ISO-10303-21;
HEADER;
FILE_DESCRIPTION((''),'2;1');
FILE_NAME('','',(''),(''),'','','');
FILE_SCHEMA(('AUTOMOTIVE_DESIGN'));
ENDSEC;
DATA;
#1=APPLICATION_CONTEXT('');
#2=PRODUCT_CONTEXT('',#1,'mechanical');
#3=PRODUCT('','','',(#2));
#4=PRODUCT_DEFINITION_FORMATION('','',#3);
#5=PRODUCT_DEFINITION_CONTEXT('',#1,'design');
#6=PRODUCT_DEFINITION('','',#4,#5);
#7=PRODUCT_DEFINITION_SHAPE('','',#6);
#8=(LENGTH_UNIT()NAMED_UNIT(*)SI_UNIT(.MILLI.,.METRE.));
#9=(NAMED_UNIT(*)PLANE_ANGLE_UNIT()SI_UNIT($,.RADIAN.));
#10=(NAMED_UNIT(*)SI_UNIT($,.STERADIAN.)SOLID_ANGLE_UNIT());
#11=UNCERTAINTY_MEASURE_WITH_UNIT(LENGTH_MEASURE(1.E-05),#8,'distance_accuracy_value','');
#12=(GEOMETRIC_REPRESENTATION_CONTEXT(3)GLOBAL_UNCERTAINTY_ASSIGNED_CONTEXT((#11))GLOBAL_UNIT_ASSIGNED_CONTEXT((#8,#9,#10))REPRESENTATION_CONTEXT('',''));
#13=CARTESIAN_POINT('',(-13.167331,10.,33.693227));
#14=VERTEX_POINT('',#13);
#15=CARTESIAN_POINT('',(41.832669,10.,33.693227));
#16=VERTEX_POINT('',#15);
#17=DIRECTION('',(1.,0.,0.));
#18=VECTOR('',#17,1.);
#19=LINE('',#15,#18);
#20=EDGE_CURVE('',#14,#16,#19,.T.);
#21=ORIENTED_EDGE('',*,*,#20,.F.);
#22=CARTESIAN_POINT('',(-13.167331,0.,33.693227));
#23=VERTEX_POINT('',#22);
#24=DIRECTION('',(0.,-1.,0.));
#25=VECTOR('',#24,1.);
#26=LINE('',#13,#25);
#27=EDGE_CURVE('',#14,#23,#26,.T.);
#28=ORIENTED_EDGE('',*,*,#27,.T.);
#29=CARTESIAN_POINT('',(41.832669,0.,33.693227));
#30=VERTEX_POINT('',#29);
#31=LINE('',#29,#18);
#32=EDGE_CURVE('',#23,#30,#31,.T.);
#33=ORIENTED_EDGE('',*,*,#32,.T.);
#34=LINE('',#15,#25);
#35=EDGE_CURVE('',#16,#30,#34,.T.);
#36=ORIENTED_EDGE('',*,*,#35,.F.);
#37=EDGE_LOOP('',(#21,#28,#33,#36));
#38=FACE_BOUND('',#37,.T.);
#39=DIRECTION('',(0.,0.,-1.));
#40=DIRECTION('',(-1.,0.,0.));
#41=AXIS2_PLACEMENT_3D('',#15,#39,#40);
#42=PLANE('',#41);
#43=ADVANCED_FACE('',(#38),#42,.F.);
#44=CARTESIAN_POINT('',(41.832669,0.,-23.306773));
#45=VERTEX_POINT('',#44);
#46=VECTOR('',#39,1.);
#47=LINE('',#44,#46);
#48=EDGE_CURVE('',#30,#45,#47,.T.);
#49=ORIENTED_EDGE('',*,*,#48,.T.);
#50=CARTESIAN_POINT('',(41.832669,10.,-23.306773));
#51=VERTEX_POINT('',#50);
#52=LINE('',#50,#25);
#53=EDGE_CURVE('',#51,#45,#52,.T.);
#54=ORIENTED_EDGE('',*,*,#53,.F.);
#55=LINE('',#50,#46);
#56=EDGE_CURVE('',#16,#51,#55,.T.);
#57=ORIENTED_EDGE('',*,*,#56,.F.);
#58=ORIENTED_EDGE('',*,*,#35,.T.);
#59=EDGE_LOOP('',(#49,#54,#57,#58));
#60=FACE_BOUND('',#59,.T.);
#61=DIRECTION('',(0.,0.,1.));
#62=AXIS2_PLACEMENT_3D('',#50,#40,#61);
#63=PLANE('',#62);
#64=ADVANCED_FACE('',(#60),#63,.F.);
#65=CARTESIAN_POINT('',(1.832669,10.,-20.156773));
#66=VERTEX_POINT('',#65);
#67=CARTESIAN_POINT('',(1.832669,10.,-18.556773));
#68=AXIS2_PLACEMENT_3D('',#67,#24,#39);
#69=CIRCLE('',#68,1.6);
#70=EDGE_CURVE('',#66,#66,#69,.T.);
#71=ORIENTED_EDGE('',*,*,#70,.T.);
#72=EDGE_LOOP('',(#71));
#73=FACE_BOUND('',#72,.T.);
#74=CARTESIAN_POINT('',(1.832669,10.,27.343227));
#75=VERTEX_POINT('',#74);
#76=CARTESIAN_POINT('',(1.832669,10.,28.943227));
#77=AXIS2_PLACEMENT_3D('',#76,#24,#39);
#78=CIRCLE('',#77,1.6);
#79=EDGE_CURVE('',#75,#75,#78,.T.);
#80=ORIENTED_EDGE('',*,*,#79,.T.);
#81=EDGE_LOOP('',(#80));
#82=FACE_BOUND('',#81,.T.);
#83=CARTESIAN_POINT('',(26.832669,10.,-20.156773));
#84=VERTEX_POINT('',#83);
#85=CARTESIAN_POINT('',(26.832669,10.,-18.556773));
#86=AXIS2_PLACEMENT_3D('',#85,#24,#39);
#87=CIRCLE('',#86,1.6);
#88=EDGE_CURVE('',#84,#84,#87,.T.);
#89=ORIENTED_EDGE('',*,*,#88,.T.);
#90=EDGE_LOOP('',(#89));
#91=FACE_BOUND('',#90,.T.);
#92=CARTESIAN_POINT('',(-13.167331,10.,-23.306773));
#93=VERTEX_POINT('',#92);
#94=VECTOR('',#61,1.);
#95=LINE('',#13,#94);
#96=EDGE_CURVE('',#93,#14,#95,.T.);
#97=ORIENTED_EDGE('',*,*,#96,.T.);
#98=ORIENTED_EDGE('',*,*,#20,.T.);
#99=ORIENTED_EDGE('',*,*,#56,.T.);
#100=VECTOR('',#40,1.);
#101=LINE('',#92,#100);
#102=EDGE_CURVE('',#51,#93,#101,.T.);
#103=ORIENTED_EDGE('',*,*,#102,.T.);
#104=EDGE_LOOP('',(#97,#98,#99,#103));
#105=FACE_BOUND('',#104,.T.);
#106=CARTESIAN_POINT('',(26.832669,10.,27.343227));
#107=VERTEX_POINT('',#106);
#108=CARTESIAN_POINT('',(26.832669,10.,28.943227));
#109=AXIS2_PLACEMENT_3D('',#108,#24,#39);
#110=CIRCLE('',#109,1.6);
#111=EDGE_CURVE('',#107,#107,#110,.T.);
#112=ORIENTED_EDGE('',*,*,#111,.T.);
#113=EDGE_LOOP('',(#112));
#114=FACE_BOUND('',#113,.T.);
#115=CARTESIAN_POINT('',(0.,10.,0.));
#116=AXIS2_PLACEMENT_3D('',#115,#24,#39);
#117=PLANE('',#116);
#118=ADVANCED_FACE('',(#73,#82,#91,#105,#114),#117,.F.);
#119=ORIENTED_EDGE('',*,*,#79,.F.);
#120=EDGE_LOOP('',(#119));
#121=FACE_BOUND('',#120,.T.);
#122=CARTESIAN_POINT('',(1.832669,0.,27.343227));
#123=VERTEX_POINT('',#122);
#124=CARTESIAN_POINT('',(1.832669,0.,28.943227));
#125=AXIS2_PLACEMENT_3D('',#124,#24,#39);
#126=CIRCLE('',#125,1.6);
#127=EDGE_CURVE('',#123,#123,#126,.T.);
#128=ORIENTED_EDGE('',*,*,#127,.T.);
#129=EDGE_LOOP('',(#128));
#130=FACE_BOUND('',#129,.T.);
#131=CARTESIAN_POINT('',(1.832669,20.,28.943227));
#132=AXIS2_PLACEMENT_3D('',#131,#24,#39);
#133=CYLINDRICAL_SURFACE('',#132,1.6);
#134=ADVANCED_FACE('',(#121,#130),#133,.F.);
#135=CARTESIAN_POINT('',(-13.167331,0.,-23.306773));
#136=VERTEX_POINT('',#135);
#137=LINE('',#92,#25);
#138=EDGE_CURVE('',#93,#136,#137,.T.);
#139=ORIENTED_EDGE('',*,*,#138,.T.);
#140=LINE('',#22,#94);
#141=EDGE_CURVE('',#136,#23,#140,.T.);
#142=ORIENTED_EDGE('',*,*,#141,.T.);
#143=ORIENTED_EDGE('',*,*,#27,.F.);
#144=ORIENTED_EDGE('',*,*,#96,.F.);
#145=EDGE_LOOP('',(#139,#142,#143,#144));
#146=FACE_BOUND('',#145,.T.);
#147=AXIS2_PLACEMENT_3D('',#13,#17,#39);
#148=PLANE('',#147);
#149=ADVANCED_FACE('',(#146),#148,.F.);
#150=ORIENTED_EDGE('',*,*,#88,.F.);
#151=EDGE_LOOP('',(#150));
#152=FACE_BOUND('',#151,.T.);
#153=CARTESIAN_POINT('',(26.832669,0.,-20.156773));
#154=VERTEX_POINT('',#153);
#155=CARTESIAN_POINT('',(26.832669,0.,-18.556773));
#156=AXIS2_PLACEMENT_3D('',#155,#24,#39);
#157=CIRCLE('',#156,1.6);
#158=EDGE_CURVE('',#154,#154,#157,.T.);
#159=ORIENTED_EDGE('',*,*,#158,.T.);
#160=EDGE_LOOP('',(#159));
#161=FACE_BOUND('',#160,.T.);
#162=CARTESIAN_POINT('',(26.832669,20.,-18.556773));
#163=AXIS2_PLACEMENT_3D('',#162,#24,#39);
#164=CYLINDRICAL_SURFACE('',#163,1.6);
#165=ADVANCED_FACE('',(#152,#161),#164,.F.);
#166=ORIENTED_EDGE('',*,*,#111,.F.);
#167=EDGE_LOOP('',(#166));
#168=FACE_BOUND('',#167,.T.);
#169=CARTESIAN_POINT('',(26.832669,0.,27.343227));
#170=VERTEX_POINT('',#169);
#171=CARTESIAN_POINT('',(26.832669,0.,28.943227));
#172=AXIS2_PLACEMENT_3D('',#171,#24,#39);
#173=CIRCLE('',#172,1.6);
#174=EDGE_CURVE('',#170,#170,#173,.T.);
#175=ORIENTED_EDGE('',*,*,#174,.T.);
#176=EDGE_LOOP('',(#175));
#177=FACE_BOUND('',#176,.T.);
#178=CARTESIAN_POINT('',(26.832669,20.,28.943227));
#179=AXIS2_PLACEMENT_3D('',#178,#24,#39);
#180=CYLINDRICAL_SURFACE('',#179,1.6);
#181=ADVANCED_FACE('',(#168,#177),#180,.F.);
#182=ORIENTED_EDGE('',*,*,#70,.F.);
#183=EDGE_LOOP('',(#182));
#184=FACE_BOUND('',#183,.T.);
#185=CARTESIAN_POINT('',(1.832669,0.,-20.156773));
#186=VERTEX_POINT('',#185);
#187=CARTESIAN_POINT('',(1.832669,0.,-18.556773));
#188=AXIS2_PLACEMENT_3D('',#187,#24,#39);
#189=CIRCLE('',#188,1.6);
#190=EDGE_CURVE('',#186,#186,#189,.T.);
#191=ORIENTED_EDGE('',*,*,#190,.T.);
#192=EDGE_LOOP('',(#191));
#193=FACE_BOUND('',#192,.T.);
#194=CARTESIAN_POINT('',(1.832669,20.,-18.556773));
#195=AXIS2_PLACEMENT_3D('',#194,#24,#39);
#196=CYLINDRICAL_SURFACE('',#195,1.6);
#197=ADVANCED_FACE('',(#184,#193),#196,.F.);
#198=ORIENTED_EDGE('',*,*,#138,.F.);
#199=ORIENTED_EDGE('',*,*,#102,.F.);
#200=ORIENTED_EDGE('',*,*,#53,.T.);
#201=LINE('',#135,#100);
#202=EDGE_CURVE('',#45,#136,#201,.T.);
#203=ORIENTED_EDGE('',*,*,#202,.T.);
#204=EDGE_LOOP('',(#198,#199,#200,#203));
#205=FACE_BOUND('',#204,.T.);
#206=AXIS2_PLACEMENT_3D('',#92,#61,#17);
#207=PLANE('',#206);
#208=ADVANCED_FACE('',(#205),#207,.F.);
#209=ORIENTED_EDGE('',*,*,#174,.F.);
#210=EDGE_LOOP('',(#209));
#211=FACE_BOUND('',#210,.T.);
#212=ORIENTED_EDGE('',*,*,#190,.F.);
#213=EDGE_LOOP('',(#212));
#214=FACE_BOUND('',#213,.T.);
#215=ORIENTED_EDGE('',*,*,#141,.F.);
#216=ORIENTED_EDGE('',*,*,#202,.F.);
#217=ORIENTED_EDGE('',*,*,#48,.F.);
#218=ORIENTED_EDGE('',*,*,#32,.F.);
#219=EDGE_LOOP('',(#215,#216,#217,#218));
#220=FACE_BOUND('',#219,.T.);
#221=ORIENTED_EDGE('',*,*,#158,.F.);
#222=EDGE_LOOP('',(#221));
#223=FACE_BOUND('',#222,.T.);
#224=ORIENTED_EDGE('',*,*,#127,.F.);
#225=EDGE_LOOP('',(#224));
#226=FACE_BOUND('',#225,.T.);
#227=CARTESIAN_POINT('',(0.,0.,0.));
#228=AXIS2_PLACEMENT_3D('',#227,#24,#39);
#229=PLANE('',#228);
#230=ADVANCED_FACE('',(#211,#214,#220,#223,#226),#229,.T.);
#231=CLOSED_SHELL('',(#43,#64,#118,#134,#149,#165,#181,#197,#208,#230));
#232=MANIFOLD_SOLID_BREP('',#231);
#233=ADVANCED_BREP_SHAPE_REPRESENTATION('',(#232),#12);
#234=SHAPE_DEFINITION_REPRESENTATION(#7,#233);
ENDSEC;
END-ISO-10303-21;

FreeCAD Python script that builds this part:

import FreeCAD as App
import Part
import Sketcher
Q = App.Units.Quantity

doc = App.newDocument("Part")
body = doc.addObject("PartDesign::Body", "Body")

sketch1 = doc.addObject("Sketcher::SketchObject", "Sketch")
body.addObject(sketch1)
sketch1.AttachmentSupport = (doc.XZ_Plane, [""])
sketch1.MapMode = "FlatFace"
sketch1.addGeometry(Part.LineSegment(App.Vector(-13, -23, 0), App.Vector(-13, 34, 0)), False)
sketch1.addGeometry(Part.LineSegment(App.Vector(-13, 34, 0), App.Vector(42, 34, 0)), False)
sketch1.addGeometry(Part.LineSegment(App.Vector(42, 34, 0), App.Vector(42, -23, 0)), False)
sketch1.addGeometry(Part.LineSegment(App.Vector(42, -23, 0), App.Vector(-13, -23, 0)), False)
sketch1.addConstraint(Sketcher.Constraint("Coincident", 0, 2, 1, 1))
sketch1.addConstraint(Sketcher.Constraint("Coincident", 1, 2, 2, 1))
sketch1.addConstraint(Sketcher.Constraint("Coincident", 2, 2, 3, 1))
sketch1.addConstraint(Sketcher.Constraint("Coincident", 3, 2, 0, 1))
sketch1.addConstraint(Sketcher.Constraint("Vertical", 0))
sketch1.addConstraint(Sketcher.Constraint("Horizontal", 1))
sketch1.addConstraint(Sketcher.Constraint("Vertical", 2))
sketch1.addConstraint(Sketcher.Constraint("Horizontal", 3))
sketch1.addConstraint(Sketcher.Constraint("DistanceX", 1, 1, 1, 2, Q("55 mm")))
sketch1.addConstraint(Sketcher.Constraint("DistanceY", 0, 1, 0, 2, Q("57 mm")))
sketch1.addConstraint(Sketcher.Constraint("DistanceX", 0, 2, -1, 1, Q("13.167331 mm")))
sketch1.addConstraint(Sketcher.Constraint("DistanceY", -1, 1, 0, 2, Q("33.693227 mm")))
pad1 = doc.addObject("PartDesign::Pad", "Pad")
body.addObject(pad1)
pad1.Profile = sketch1
pad1.Length = 10
pad1.Reversed = True

sketch2 = doc.addObject("Sketcher::SketchObject", "Sketch001")
body.addObject(sketch2)
sketch2.AttachmentSupport = (doc.XZ_Plane, [""])
sketch2.MapMode = "FlatFace"
sketch2.addGeometry(Part.Circle(App.Vector(1.8, 28.9, 0), App.Vector(0, 0, 1), 1.6), False)
sketch2.addGeometry(Part.Circle(App.Vector(26.8, 28.9, 0), App.Vector(0, 0, 1), 1.6), False)
sketch2.addGeometry(Part.Circle(App.Vector(1.8, -18.6, 0), App.Vector(0, 0, 1), 1.6), False)
sketch2.addGeometry(Part.Circle(App.Vector(26.8, -18.6, 0), App.Vector(0, 0, 1), 1.6), False)
sketch2.addConstraint(Sketcher.Constraint("Equal", 0, 1))
sketch2.addConstraint(Sketcher.Constraint("Equal", 1, 2))
sketch2.addConstraint(Sketcher.Constraint("Equal", 2, 3))
sketch2.addConstraint(Sketcher.Constraint("Horizontal", 0, 3, 1, 3))
sketch2.addConstraint(Sketcher.Constraint("Horizontal", 2, 3, 3, 3))
sketch2.addConstraint(Sketcher.Constraint("Vertical", 0, 3, 2, 3))
sketch2.addConstraint(Sketcher.Constraint("Vertical", 1, 3, 3, 3))
sketch2.addConstraint(Sketcher.Constraint("Diameter", 0, Q("3.2 mm")))
sketch2.addConstraint(Sketcher.Constraint("DistanceX", 0, 3, 1, 3, Q("25 mm")))
sketch2.addConstraint(Sketcher.Constraint("DistanceY", 2, 3, 0, 3, Q("47.5 mm")))
sketch2.addConstraint(Sketcher.Constraint("DistanceX", -1, 1, 0, 3, Q("1.832669 mm")))
sketch2.addConstraint(Sketcher.Constraint("DistanceY", -1, 1, 0, 3, Q("28.943227 mm")))
pocket1 = doc.addObject("PartDesign::Pocket", "Pocket")
body.addObject(pocket1)
pocket1.Profile = sketch2
pocket1.Length = 20

doc.recompute()
